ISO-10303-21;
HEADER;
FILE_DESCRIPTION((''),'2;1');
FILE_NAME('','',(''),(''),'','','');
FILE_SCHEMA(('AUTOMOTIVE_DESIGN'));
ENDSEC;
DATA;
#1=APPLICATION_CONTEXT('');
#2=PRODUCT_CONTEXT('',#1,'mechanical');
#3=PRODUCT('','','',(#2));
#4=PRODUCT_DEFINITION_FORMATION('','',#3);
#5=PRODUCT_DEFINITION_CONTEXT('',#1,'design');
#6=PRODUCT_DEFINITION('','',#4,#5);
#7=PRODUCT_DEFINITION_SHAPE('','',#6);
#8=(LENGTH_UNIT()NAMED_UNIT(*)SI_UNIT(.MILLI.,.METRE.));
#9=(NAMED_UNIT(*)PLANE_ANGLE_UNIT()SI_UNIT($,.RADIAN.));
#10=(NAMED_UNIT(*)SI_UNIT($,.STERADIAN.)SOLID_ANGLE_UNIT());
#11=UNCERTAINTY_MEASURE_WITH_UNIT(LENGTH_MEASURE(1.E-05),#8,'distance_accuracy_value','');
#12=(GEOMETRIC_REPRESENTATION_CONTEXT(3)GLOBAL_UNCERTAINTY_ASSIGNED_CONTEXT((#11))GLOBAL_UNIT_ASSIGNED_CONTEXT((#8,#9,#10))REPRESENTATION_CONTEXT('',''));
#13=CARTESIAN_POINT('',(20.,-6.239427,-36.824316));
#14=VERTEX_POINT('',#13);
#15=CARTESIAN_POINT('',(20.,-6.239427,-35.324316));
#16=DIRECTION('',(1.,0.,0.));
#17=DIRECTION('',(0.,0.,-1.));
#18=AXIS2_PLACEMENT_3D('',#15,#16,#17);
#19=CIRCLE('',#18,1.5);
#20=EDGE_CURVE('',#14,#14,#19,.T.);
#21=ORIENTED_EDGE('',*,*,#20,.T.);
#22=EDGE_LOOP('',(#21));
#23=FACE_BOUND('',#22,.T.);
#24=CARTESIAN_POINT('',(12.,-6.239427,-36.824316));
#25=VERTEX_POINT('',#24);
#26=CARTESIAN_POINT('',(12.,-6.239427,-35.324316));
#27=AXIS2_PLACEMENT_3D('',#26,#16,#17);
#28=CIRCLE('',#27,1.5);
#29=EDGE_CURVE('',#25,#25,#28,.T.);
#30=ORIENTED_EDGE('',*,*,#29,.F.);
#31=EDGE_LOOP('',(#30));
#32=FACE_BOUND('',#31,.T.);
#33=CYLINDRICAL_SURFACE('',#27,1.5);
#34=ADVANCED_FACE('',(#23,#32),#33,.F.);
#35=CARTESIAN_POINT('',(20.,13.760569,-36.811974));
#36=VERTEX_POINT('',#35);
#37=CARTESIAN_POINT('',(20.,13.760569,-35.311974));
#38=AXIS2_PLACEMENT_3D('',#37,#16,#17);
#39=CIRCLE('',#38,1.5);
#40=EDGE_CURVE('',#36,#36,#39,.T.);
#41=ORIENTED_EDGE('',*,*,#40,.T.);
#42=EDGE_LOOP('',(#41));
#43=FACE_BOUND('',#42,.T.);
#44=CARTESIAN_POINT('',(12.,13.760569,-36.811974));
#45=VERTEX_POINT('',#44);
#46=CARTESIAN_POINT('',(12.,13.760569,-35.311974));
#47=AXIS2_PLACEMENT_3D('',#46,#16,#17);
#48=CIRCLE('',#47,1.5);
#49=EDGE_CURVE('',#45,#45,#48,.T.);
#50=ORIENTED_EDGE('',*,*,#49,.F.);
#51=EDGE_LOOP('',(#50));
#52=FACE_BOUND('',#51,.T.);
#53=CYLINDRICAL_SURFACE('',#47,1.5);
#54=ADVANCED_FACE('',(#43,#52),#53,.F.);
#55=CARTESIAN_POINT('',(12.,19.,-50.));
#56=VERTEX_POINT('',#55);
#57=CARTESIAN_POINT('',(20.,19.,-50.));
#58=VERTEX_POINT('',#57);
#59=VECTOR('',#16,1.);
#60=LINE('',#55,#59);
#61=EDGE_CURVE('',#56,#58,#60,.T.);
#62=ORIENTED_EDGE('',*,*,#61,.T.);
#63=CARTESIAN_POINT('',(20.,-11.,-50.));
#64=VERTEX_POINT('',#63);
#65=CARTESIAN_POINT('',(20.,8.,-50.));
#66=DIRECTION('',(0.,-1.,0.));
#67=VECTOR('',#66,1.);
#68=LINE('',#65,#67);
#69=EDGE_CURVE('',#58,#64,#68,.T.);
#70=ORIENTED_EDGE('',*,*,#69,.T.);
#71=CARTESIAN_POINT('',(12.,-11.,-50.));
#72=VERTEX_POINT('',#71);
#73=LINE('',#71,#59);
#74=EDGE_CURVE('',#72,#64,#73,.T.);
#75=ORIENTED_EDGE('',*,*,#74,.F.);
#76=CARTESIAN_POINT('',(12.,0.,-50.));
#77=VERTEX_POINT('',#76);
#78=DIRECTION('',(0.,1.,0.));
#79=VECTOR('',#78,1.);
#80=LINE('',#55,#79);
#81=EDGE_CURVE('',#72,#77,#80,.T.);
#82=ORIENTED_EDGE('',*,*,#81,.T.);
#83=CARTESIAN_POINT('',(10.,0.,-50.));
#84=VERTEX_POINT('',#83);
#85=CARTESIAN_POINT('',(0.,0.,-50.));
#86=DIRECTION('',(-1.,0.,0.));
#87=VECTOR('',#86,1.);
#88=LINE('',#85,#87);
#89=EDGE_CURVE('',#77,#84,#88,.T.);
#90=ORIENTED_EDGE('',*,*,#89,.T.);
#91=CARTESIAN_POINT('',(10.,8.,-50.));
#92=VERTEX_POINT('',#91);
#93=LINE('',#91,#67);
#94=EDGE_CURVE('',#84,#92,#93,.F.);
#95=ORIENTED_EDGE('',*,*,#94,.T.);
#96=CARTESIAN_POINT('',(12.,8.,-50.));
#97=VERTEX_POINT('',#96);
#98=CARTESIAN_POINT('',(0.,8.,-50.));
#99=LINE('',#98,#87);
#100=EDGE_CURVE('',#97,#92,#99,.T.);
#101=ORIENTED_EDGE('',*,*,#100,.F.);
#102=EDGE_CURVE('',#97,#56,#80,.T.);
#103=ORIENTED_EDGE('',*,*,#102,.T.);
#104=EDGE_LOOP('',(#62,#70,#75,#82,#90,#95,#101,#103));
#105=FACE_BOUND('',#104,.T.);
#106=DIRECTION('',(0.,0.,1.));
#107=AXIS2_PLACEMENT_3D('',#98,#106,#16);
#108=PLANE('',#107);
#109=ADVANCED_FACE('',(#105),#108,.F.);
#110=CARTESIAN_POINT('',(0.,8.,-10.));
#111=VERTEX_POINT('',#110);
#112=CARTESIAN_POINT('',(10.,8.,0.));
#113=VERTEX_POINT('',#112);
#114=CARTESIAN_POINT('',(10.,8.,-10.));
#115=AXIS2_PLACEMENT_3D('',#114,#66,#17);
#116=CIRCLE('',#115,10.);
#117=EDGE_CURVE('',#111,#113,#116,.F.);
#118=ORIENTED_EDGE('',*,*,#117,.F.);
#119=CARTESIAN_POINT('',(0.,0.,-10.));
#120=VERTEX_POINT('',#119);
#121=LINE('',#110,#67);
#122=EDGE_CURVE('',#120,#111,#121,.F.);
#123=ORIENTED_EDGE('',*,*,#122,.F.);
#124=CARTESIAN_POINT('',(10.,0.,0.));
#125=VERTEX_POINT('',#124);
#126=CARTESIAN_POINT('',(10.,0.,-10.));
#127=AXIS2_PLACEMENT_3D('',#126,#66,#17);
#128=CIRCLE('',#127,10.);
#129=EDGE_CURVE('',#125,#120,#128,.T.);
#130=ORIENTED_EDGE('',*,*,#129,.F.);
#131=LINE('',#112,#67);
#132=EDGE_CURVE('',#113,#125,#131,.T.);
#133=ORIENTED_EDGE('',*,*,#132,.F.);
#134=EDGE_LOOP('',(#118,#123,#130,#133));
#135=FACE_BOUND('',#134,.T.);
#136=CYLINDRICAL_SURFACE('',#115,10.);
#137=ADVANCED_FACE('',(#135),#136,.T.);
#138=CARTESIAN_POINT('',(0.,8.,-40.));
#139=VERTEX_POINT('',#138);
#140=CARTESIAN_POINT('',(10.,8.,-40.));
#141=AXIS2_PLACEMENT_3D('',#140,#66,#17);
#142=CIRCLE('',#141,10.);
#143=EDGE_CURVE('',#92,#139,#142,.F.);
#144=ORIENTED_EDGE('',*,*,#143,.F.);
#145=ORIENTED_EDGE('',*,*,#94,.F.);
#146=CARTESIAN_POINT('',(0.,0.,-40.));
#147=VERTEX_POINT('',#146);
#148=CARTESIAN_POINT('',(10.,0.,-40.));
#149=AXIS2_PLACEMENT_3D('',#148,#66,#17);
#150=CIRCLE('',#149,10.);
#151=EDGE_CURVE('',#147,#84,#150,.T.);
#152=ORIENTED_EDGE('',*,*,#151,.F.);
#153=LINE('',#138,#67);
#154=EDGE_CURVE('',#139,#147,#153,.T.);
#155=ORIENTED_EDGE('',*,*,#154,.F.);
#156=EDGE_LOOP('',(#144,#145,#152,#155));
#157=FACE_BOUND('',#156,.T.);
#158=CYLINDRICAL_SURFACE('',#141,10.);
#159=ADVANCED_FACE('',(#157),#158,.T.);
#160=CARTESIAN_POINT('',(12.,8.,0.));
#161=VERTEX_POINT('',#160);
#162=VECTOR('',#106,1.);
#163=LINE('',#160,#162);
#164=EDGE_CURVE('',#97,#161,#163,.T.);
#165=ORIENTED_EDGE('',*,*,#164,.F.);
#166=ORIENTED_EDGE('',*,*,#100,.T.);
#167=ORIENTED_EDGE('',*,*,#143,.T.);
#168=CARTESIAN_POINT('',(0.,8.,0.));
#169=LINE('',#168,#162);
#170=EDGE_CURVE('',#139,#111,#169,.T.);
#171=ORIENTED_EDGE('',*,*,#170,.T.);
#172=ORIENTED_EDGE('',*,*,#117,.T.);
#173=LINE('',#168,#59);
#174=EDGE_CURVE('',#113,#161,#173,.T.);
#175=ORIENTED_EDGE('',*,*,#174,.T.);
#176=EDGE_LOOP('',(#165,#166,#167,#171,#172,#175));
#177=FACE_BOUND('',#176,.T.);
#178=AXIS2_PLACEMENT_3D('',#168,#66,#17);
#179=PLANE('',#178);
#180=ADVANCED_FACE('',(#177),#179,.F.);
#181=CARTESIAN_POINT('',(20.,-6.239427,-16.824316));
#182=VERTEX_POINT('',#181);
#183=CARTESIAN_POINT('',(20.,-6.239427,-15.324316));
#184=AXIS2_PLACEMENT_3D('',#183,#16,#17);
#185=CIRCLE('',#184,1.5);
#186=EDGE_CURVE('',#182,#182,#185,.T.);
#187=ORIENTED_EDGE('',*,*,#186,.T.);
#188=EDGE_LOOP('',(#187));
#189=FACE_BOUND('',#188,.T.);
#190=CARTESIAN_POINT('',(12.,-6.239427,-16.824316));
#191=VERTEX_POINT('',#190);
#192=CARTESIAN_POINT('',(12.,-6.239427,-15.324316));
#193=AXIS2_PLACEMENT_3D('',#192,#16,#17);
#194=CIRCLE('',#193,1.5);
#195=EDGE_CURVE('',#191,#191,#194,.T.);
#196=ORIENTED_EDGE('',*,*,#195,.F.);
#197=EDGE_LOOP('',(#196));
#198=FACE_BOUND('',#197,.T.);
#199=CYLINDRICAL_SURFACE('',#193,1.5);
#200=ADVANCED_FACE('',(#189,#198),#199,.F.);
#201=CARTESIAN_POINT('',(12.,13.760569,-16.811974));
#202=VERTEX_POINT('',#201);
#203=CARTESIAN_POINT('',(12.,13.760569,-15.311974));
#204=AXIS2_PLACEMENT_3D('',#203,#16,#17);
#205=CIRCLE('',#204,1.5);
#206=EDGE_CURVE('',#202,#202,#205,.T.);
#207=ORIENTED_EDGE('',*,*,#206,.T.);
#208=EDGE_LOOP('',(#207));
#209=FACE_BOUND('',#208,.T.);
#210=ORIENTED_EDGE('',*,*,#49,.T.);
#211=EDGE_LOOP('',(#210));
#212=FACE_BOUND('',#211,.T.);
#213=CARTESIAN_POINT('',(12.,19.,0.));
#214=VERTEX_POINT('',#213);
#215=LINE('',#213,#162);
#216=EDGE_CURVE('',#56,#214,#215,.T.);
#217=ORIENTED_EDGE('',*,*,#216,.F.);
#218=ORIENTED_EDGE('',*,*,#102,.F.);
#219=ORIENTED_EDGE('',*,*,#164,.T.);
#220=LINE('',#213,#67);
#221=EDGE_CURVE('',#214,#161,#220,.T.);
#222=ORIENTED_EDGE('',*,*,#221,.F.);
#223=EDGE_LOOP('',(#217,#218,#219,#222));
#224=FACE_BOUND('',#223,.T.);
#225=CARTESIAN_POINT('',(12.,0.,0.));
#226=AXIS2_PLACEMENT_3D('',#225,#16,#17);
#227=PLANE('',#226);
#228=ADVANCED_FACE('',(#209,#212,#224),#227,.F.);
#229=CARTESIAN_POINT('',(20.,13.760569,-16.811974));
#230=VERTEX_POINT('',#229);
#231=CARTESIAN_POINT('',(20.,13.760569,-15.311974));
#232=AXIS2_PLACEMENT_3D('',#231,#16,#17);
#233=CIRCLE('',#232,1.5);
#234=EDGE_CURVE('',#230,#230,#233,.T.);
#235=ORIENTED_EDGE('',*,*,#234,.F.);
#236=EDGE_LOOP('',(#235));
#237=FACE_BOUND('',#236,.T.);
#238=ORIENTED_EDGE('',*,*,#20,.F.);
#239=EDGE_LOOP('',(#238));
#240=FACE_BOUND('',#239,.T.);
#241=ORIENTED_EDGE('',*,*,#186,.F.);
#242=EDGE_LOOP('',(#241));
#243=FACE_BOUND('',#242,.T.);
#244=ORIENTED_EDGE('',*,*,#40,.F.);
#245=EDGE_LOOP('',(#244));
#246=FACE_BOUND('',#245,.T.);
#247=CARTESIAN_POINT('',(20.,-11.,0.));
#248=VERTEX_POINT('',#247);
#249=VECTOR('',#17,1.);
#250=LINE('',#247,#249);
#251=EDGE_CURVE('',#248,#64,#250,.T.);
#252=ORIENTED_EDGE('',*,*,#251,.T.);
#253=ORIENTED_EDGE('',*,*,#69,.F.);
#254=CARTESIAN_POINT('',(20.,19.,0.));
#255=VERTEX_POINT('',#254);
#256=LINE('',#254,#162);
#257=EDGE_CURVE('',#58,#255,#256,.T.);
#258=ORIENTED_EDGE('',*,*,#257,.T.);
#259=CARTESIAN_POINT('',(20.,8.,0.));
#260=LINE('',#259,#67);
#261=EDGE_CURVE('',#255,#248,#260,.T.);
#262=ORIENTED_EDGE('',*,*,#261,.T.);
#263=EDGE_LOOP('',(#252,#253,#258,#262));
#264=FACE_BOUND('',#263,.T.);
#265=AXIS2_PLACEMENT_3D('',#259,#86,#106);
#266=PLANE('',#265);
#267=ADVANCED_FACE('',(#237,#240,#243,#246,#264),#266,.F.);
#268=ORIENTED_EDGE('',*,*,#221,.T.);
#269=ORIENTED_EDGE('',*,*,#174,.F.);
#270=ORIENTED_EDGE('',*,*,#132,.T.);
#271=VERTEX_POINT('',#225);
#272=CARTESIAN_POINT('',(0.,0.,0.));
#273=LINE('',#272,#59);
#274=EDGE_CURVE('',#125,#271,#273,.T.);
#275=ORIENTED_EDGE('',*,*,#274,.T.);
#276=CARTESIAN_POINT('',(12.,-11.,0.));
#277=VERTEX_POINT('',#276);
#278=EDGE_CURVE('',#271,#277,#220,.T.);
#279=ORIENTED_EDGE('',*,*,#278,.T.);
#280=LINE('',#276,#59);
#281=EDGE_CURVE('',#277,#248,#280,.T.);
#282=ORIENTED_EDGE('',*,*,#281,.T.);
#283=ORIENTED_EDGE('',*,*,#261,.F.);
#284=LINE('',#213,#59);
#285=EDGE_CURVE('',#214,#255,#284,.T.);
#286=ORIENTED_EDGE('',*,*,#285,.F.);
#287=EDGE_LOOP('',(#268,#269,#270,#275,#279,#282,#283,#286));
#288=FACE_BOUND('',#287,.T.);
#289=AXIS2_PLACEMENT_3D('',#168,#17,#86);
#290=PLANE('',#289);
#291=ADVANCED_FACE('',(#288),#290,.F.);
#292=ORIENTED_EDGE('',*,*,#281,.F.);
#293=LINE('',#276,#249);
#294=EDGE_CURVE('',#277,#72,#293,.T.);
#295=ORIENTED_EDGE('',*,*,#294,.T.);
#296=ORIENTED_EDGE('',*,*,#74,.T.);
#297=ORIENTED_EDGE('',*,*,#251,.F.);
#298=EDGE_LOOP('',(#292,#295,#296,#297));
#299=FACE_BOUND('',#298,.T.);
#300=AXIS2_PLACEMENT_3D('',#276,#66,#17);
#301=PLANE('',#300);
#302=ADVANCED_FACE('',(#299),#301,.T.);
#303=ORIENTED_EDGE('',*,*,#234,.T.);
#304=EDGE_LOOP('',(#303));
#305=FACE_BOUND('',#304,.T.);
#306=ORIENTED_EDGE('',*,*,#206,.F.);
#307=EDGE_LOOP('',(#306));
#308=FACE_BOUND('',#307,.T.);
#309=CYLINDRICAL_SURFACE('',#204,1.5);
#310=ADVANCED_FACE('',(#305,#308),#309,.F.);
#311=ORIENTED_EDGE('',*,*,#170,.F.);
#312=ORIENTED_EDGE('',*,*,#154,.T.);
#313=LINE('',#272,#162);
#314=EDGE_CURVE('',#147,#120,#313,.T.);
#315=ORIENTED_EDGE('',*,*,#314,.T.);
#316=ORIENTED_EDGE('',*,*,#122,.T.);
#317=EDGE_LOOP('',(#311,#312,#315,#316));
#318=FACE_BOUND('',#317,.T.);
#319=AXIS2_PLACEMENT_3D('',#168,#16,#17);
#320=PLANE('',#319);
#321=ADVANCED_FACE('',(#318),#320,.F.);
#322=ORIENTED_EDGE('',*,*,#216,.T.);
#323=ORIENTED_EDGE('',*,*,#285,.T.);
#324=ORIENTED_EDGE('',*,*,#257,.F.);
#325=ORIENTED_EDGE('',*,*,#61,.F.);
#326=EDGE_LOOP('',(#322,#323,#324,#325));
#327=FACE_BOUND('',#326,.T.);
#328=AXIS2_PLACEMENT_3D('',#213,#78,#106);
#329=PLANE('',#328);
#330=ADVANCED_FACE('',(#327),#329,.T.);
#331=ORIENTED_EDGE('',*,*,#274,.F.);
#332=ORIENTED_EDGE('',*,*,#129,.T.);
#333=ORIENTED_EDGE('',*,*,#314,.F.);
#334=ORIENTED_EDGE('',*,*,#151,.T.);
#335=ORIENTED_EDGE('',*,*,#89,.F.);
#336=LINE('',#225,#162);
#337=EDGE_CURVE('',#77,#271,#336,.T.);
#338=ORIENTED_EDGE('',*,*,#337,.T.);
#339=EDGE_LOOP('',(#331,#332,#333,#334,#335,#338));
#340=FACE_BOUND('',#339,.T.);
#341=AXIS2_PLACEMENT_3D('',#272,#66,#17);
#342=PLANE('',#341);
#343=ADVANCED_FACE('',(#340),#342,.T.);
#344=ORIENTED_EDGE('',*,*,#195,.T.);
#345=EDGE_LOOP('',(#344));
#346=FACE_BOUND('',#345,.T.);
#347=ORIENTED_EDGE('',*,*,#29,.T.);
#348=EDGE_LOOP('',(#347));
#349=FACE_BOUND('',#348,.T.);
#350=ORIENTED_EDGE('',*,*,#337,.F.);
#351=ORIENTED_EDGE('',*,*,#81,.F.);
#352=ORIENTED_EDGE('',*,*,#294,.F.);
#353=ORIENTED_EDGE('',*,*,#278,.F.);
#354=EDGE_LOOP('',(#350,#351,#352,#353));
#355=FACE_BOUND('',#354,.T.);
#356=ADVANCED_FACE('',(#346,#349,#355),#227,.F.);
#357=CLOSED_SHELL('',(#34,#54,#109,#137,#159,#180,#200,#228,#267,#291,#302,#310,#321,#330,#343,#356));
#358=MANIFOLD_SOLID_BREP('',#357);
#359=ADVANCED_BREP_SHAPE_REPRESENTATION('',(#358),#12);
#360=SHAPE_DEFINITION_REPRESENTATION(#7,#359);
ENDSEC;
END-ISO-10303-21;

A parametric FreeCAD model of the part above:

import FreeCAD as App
import Part
import Sketcher
from FreeCAD import Vector
Q = App.Units.Quantity


def edges_at(feature, points):
    """Names of the edges that pass closest to the given points."""
    edges = feature.Shape.Edges
    near = lambda p: min(range(len(edges)), key=lambda i: edges[i].distToShape(Part.Vertex(*p))[0])
    return sorted({f"Edge{near(p) + 1}" for p in points})


def add_polygon(sketch, points):
    """Adds a closed chain of lines whose ends are joined by coincident constraints."""
    first, n = sketch.GeometryCount, len(points)
    for a, b in zip(points, points[1:] + points[:1]):
        sketch.addGeometry(Part.LineSegment(App.Vector(*a, 0), App.Vector(*b, 0)), False)
    for i in range(n):
        sketch.addConstraint(Sketcher.Constraint("Coincident", first + i, 2, first + (i + 1) % n, 1))

doc = App.newDocument("Part")
body = doc.addObject("PartDesign::Body", "Body")

sketch1 = doc.addObject("Sketcher::SketchObject", "Sketch")
body.addObject(sketch1)
sketch1.AttachmentSupport = (doc.XZ_Plane, [""])
sketch1.MapMode = "FlatFace"
add_polygon(sketch1, [(0, -50), (0, 0), (20, 0), (20, -50)])
sketch1.addConstraint([
    Sketcher.Constraint("Vertical", 0),
    Sketcher.Constraint("Horizontal", 1),
    Sketcher.Constraint("Vertical", 2),
    Sketcher.Constraint("Horizontal", 3),
    Sketcher.Constraint("Coincident", 0, 2, -1, 1),
    Sketcher.Constraint("DistanceX", 1, 1, 1, 2, Q("20 mm")),
    Sketcher.Constraint("DistanceY", 0, 1, 0, 2, Q("50 mm")),
])
pad1 = doc.addObject("PartDesign::Pad", "Pad")
body.addObject(pad1)
pad1.Profile = sketch1
pad1.Length = 8
pad1.Reversed = True
doc.recompute()

fillet = doc.addObject("PartDesign::Fillet", "Fillet")
body.addObject(fillet)
fillet.Base = (pad1, edges_at(pad1, [(0, 4, -50), (0, 4, 0)]))
fillet.Radius = 10

sketch2 = doc.addObject("Sketcher::SketchObject", "Sketch001")
body.addObject(sketch2)
sketch2.AttachmentSupport = (doc.YZ_Plane, [""])
sketch2.MapMode = "FlatFace"
sketch2.AttachmentOffset = App.Placement(Vector(0, 0, 20), App.Rotation())
add_polygon(sketch2, [(19, 0), (-11, 0), (-11, -50), (19, -50)])
sketch2.addConstraint([
    Sketcher.Constraint("Horizontal", 0),
    Sketcher.Constraint("Vertical", 1),
    Sketcher.Constraint("Horizontal", 2),
    Sketcher.Constraint("Vertical", 3),
    Sketcher.Constraint("PointOnObject", 0, 2, -1),
    Sketcher.Constraint("DistanceX", 0, 2, 0, 1, Q("30 mm")),
    Sketcher.Constraint("DistanceY", 1, 2, 1, 1, Q("50 mm")),
    Sketcher.Constraint("DistanceX", 0, 2, -1, 1, Q("11 mm")),
])
pad2 = doc.addObject("PartDesign::Pad", "Pad001")
body.addObject(pad2)
pad2.Profile = sketch2
pad2.Length = 8
pad2.Reversed = True

sketch3 = doc.addObject("Sketcher::SketchObject", "Sketch002")
body.addObject(sketch3)
sketch3.AttachmentSupport = (doc.YZ_Plane, [""])
sketch3.MapMode = "FlatFace"
sketch3.AttachmentOffset = App.Placement(Vector(0, 0, 20), App.Rotation())
sketch3.addGeometry([
    Part.Circle(Vector(13.8, -15.3, 0), Vector(0, 0, 1), 1.5),
    Part.Circle(Vector(-6.2, -15.3, 0), Vector(0, 0, 1), 1.5),
    Part.Circle(Vector(13.8, -35.3, 0), Vector(0, 0, 1), 1.5),
    Part.Circle(Vector(-6.2, -35.3, 0), Vector(0, 0, 1), 1.5),
], False)
sketch3.addConstraint([
    Sketcher.Constraint("Equal", 0, 1),
    Sketcher.Constraint("Equal", 1, 2),
    Sketcher.Constraint("Equal", 2, 3),
    Sketcher.Constraint("Vertical", 0, 3, 2, 3),
    Sketcher.Constraint("Vertical", 1, 3, 3, 3),
    Sketcher.Constraint("Diameter", 0, Q("3 mm")),
    Sketcher.Constraint("DistanceY", 2, 3, 0, 3, Q("20 mm")),
    Sketcher.Constraint("DistanceY", 3, 3, 1, 3, Q("20 mm")),
    Sketcher.Constraint("DistanceX", -1, 1, 0, 3, Q("13.760569 mm")),
    Sketcher.Constraint("DistanceY", 0, 3, -1, 1, Q("15.311974 mm")),
    Sketcher.Constraint("DistanceX", 1, 3, -1, 1, Q("6.239427 mm")),
    Sketcher.Constraint("DistanceY", 1, 3, -1, 1, Q("15.324316 mm")),
])
pocket1 = doc.addObject("PartDesign::Pocket", "Pocket")
body.addObject(pocket1)
pocket1.Profile = sketch3
pocket1.Length = 8

doc.recompute()
